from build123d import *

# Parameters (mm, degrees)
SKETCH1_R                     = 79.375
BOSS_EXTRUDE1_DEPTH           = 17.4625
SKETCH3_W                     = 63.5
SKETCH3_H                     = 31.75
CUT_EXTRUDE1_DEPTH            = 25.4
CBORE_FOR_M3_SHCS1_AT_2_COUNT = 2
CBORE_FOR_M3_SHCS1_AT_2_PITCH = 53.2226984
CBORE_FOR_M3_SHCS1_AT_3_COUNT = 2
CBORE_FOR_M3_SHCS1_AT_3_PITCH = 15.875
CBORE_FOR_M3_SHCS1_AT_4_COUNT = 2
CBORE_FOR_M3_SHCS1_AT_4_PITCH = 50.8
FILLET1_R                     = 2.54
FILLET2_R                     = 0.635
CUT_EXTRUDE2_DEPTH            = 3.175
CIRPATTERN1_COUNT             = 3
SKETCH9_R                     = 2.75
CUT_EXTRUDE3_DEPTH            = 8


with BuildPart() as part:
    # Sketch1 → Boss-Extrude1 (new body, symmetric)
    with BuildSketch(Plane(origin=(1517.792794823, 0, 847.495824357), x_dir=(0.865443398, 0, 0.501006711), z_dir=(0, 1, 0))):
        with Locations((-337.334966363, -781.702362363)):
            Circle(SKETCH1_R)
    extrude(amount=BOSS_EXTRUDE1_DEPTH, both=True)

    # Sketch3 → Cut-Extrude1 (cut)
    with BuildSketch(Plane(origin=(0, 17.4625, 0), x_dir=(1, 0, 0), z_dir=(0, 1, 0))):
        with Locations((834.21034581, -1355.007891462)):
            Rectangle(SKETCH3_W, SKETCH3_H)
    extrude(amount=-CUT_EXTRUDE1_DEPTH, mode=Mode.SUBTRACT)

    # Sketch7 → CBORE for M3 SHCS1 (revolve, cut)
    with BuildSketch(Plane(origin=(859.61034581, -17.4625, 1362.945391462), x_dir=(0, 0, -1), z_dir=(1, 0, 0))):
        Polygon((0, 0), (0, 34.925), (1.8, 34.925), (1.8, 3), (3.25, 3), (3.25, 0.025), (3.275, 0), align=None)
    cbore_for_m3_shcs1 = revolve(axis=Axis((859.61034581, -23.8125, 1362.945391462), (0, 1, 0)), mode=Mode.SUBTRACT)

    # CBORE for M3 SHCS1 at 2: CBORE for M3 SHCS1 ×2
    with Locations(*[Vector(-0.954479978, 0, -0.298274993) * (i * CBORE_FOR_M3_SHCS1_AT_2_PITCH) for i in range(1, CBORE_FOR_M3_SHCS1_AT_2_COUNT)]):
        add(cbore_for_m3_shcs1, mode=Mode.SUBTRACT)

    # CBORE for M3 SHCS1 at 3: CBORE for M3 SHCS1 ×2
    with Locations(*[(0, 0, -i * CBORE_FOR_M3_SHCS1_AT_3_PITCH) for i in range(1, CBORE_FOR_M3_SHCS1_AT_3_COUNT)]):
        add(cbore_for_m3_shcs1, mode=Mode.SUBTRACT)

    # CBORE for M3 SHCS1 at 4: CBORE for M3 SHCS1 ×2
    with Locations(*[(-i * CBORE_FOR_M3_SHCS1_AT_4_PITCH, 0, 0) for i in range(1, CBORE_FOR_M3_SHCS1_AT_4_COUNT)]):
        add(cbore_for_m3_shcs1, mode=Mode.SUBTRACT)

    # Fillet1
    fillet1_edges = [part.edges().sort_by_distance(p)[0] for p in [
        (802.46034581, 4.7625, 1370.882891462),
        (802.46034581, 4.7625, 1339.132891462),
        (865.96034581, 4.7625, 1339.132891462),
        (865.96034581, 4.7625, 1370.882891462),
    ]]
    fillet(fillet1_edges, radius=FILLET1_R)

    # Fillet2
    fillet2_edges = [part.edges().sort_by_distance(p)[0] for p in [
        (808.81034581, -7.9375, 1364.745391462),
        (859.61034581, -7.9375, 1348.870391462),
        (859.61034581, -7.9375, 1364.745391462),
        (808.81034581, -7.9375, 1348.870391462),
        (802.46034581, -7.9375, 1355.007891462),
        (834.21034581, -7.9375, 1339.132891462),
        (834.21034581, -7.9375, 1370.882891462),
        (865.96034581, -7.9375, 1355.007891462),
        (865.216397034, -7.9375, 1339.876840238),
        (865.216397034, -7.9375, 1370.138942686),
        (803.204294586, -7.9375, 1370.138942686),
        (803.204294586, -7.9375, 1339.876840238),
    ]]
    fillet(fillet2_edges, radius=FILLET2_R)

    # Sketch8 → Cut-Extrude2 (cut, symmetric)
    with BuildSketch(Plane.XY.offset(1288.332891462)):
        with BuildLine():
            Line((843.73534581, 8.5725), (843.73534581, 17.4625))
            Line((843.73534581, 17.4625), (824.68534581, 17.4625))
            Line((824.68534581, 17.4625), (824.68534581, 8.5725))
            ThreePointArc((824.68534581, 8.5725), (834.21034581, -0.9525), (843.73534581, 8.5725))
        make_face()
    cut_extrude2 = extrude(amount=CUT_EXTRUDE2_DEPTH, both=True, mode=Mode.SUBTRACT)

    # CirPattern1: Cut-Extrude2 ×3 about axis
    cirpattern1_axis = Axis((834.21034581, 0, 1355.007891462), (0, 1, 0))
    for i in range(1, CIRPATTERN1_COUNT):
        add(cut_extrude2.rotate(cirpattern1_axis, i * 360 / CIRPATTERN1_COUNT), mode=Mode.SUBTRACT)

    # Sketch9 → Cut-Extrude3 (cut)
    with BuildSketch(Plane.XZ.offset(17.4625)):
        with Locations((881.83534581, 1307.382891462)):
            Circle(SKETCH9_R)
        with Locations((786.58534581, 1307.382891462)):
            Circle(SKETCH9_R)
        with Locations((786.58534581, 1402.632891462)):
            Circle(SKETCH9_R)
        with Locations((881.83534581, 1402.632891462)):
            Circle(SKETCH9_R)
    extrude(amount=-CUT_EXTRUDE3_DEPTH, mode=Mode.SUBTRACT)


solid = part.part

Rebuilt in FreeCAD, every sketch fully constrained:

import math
import FreeCAD as App
import Part
import Sketcher

V = App.Vector
Q = App.Units.Quantity


def edges_at(feature, points):
    """Names of the edges that pass closest to the given points."""
    edges = feature.Shape.Edges
    near = lambda p: min(range(len(edges)), key=lambda i: edges[i].distToShape(Part.Vertex(*p))[0])
    return sorted({f"Edge{near(p) + 1}" for p in points})

doc = App.newDocument("Part")
body = doc.addObject("PartDesign::Body", "Body")

sketch1 = body.newObject("Sketcher::SketchObject", "Sketch")
sketch1.AttachmentSupport = (doc.getObject("XZ_Plane"), [""])
sketch1.MapMode = "FlatFace"
sketch1.addGeometry(Part.Circle(V(834.210346, 1355.007891, 0), V(0, 0, 1), 79.375), False)
sketch1.addConstraint(Sketcher.Constraint("Diameter", 0, Q("6.25 in")))
sketch1.addConstraint(Sketcher.Constraint("DistanceY", -1, 1, 0, 3, 1355.007891))
sketch1.addConstraint(Sketcher.Constraint("DistanceX", -1, 1, 0, 3, 834.210346))
pad1 = body.newObject("PartDesign::Pad", "Pad")
pad1.Profile = sketch1
pad1.Length = Q("1.375 in")
pad1.Midplane = True

sketch2 = body.newObject("Sketcher::SketchObject", "Sketch001")
sketch2.AttachmentSupport = (doc.getObject("XZ_Plane"), [""])
sketch2.MapMode = "FlatFace"
sketch2.AttachmentOffset = App.Placement(V(0, 0, -0.6875 * 25.4), App.Rotation())
sketch2.addGeometry(Part.LineSegment(V(802.460346, 1339.132891, 0), V(802.460346, 1370.882891, 0)), False)
sketch2.addGeometry(Part.LineSegment(V(802.460346, 1370.882891, 0), V(865.960346, 1370.882891, 0)), False)
sketch2.addGeometry(Part.LineSegment(V(865.960346, 1370.882891, 0), V(865.960346, 1339.132891, 0)), False)
sketch2.addGeometry(Part.LineSegment(V(865.960346, 1339.132891, 0), V(802.460346, 1339.132891, 0)), False)
sketch2.addConstraint(Sketcher.Constraint("Coincident", 0, 2, 1, 1))
sketch2.addConstraint(Sketcher.Constraint("Coincident", 1, 2, 2, 1))
sketch2.addConstraint(Sketcher.Constraint("Coincident", 2, 2, 3, 1))
sketch2.addConstraint(Sketcher.Constraint("Coincident", 3, 2, 0, 1))
sketch2.addConstraint(Sketcher.Constraint("Vertical", 0))
sketch2.addConstraint(Sketcher.Constraint("Horizontal", 1))
sketch2.addConstraint(Sketcher.Constraint("Vertical", 2))
sketch2.addConstraint(Sketcher.Constraint("Horizontal", 3))
sketch2.addConstraint(Sketcher.Constraint("DistanceX", 1, 1, 1, 2, Q("2.5 in")))
sketch2.addConstraint(Sketcher.Constraint("DistanceY", 0, 1, 0, 2, Q("1.25 in")))
sketch2.addConstraint(Sketcher.Constraint("DistanceY", -1, 1, 0, 2, 1370.882891))
sketch2.addConstraint(Sketcher.Constraint("DistanceX", -1, 1, 0, 2, 802.460346))
pocket1 = body.newObject("PartDesign::Pocket", "Pocket")
pocket1.Profile = sketch2
pocket1.Length = Q("1 in")
pocket1.Reversed = True

sketch3 = body.newObject("Sketcher::SketchObject", "Sketch002")
sketch3.AttachmentSupport = (doc.getObject("YZ_Plane"), [""])
sketch3.MapMode = "FlatFace"
sketch3.AttachmentOffset = App.Placement(V(0, 0, 859.610346), App.Rotation())
sketch3.addGeometry(Part.LineSegment(V(17.4625, 1362.945391, 0), V(-17.4625, 1362.945391, 0)), False)
sketch3.addGeometry(Part.LineSegment(V(-17.4625, 1362.945391, 0), V(-17.4625, 1359.670391, 0)), False)
sketch3.addGeometry(Part.LineSegment(V(-17.4625, 1359.670391, 0), V(-17.4375, 1359.695391, 0)), False)
sketch3.addGeometry(Part.LineSegment(V(-17.4375, 1359.695391, 0), V(-14.4625, 1359.695391, 0)), False)
sketch3.addGeometry(Part.LineSegment(V(-14.4625, 1359.695391, 0), V(-14.4625, 1361.145391, 0)), False)
sketch3.addGeometry(Part.LineSegment(V(-14.4625, 1361.145391, 0), V(17.4625, 1361.145391, 0)), False)
sketch3.addGeometry(Part.LineSegment(V(17.4625, 1361.145391, 0), V(17.4625, 1362.945391, 0)), False)
sketch3.addGeometry(Part.LineSegment(V(-17.4625, 1362.945391, 0), V(17.4625, 1362.945391, 0)), True)
sketch3.addConstraint(Sketcher.Constraint("Coincident", 0, 2, 1, 1))
sketch3.addConstraint(Sketcher.Constraint("Coincident", 1, 2, 2, 1))
sketch3.addConstraint(Sketcher.Constraint("Coincident", 2, 2, 3, 1))
sketch3.addConstraint(Sketcher.Constraint("Coincident", 3, 2, 4, 1))
sketch3.addConstraint(Sketcher.Constraint("Coincident", 4, 2, 5, 1))
sketch3.addConstraint(Sketcher.Constraint("Coincident", 5, 2, 6, 1))
sketch3.addConstraint(Sketcher.Constraint("Coincident", 6, 2, 0, 1))
sketch3.addConstraint(Sketcher.Constraint("Horizontal", 0))
sketch3.addConstraint(Sketcher.Constraint("Vertical", 1))
sketch3.addConstraint(Sketcher.Constraint("Horizontal", 3))
sketch3.addConstraint(Sketcher.Constraint("Vertical", 4))
sketch3.addConstraint(Sketcher.Constraint("Horizontal", 5))
sketch3.addConstraint(Sketcher.Constraint("Vertical", 6))
sketch3.addConstraint(Sketcher.Constraint("Horizontal", 7))
sketch3.addConstraint(Sketcher.Constraint("Coincident", 7, 1, 0, 2))
sketch3.addConstraint(Sketcher.Constraint("Vertical", 5, 2, 7, 2))
sketch3.addConstraint(Sketcher.Constraint("Angle", 2, Q("45 deg")))
sketch3.addConstraint(Sketcher.Constraint("DistanceX", 0, 2, 0, 1, Q("1.375 in")))
sketch3.addConstraint(Sketcher.Constraint("DistanceX", 0, 2, -1, 1, Q("0.6875 in")))
sketch3.addConstraint(Sketcher.Constraint("DistanceX", 3, 1, 3, 2, 2.975))
sketch3.addConstraint(Sketcher.Constraint("DistanceX", 5, 1, 5, 2, 31.925))
sketch3.addConstraint(Sketcher.Constraint("DistanceY", 1, 2, 1, 1, 3.275))
sketch3.addConstraint(Sketcher.Constraint("DistanceY", 4, 1, 4, 2, 1.45))
sketch3.addConstraint(Sketcher.Constraint("DistanceY", -1, 1, 0, 2, 1362.945391))
groove = body.newObject("PartDesign::Groove", "Groove")
groove.Profile = sketch3
groove.ReferenceAxis = (sketch3, ["Axis0"])
groove.Angle = 360
doc.recompute()

datumline = body.newObject("PartDesign::Line", "DatumLine")
datumline.Placement = App.Placement(V(0, 0, 0), App.Rotation(V(0, 0, 1), V(-0.954479978, 0, -0.298274993)))
linearpattern = body.newObject("PartDesign::LinearPattern", "LinearPattern")
linearpattern.Originals = [groove]
linearpattern.Direction = (datumline, [""])
linearpattern.Mode = "offset"
linearpattern.Offset = 53.222698
linearpattern.Occurrences = 2
body.Tip = linearpattern
doc.recompute()

linearpattern2 = body.newObject("PartDesign::LinearPattern", "LinearPattern001")
linearpattern2.Originals = [groove]
linearpattern2.Direction = (doc.getObject("Z_Axis"), [""])
linearpattern2.Mode = "offset"
linearpattern2.Offset = Q("0.625 in")
linearpattern2.Occurrences = 2
linearpattern2.Reversed = True
body.Tip = linearpattern2
doc.recompute()

linearpattern3 = body.newObject("PartDesign::LinearPattern", "LinearPattern002")
linearpattern3.Originals = [groove]
linearpattern3.Direction = (doc.getObject("X_Axis"), [""])
linearpattern3.Mode = "offset"
linearpattern3.Offset = Q("2 in")
linearpattern3.Occurrences = 2
linearpattern3.Reversed = True
body.Tip = linearpattern3
doc.recompute()

fillet = body.newObject("PartDesign::Fillet", "Fillet")
fillet.Base = (linearpattern3, edges_at(linearpattern3, [
    (802.46, 4.763, 1370.883),
    (802.46, 4.763, 1339.133),
    (865.96, 4.763, 1339.133),
    (865.96, 4.763, 1370.883),
]))
fillet.Radius = Q("0.1 in")
doc.recompute()

fillet2 = body.newObject("PartDesign::Fillet", "Fillet001")
fillet2.Base = (fillet, edges_at(fillet, [
    (808.81, -7.938, 1364.745),
    (859.61, -7.938, 1348.87),
    (859.61, -7.938, 1364.745),
    (808.81, -7.938, 1348.87),
    (802.46, -7.938, 1355.008),
    (834.21, -7.938, 1339.133),
    (834.21, -7.938, 1370.883),
    (865.96, -7.938, 1355.008),
    (865.216, -7.938, 1339.877),
    (865.216, -7.938, 1370.139),
    (803.204, -7.938, 1370.139),
    (803.204, -7.938, 1339.877),
]))
fillet2.Radius = Q("0.025 in")

sketch4 = body.newObject("Sketcher::SketchObject", "Sketch003")
sketch4.AttachmentSupport = (doc.getObject("XY_Plane"), [""])
sketch4.MapMode = "FlatFace"
sketch4.AttachmentOffset = App.Placement(V(0, 0, 1288.332891), App.Rotation())
sketch4.addGeometry(Part.LineSegment(V(843.735346, 8.5725, 0), V(843.735346, 17.4625, 0)), False)
sketch4.addGeometry(Part.LineSegment(V(843.735346, 17.4625, 0), V(824.685346, 17.4625, 0)), False)
sketch4.addGeometry(Part.LineSegment(V(824.685346, 17.4625, 0), V(824.685346, 8.5725, 0)), False)
sketch4.addGeometry(Part.ArcOfCircle(Part.Circle(V(834.210346, 8.5725, 0), V(0, 0, 1), 9.525), math.radians(180), math.radians(360)), False)
sketch4.addConstraint(Sketcher.Constraint("Coincident", 0, 2, 1, 1))
sketch4.addConstraint(Sketcher.Constraint("Coincident", 1, 2, 2, 1))
sketch4.addConstraint(Sketcher.Constraint("Tangent", 2, 2, 3, 1))
sketch4.addConstraint(Sketcher.Constraint("Tangent", 3, 2, 0, 1))
sketch4.addConstraint(Sketcher.Constraint("Vertical", 0))
sketch4.addConstraint(Sketcher.Constraint("Horizontal", 1))
sketch4.addConstraint(Sketcher.Constraint("Vertical", 2))
sketch4.addConstraint(Sketcher.Constraint("Radius", 3, Q("0.375 in")))
sketch4.addConstraint(Sketcher.Constraint("DistanceY", 0, 1, 0, 2, Q("0.35 in")))
sketch4.addConstraint(Sketcher.Constraint("DistanceY", -1, 1, 0, 2, Q("0.6875 in")))
sketch4.addConstraint(Sketcher.Constraint("DistanceX", -1, 1, 3, 3, 834.210346))
pocket2 = body.newObject("PartDesign::Pocket", "Pocket001")
pocket2.Profile = sketch4
pocket2.Length = Q("0.25 in")
pocket2.Midplane = True
doc.recompute()

datumline2 = body.newObject("PartDesign::Line", "DatumLine001")
datumline2.Placement = App.Placement(V(834.210346, 0, 1355.007891), App.Rotation(V(0, 0, 1), V(0, 1, 0)))
polarpattern = body.newObject("PartDesign::PolarPattern", "PolarPattern")
polarpattern.Originals = [pocket2]
polarpattern.Axis = (datumline2, [""])
polarpattern.Angle = 360
polarpattern.Occurrences = 3
body.Tip = polarpattern

sketch5 = body.newObject("Sketcher::SketchObject", "Sketch004")
sketch5.AttachmentSupport = (doc.getObject("XZ_Plane"), [""])
sketch5.MapMode = "FlatFace"
sketch5.AttachmentOffset = App.Placement(V(0, 0, 0.6875 * 25.4), App.Rotation())
sketch5.addGeometry(Part.Circle(V(881.835346, 1307.382891, 0), V(0, 0, 1), 2.75), False)
sketch5.addGeometry(Part.Circle(V(786.585346, 1307.382891, 0), V(0, 0, 1), 2.75), False)
sketch5.addGeometry(Part.Circle(V(786.585346, 1402.632891, 0), V(0, 0, 1), 2.75), False)
sketch5.addGeometry(Part.Circle(V(881.835346, 1402.632891, 0), V(0, 0, 1), 2.75), False)
sketch5.addConstraint(Sketcher.Constraint("Equal", 0, 1))
sketch5.addConstraint(Sketcher.Constraint("Equal", 1, 2))
sketch5.addConstraint(Sketcher.Constraint("Equal", 2, 3))
sketch5.addConstraint(Sketcher.Constraint("Horizontal", 0, 3, 1, 3))
sketch5.addConstraint(Sketcher.Constraint("Horizontal", 2, 3, 3, 3))
sketch5.addConstraint(Sketcher.Constraint("Vertical", 1, 3, 2, 3))
sketch5.addConstraint(Sketcher.Constraint("Vertical", 0, 3, 3, 3))
sketch5.addConstraint(Sketcher.Constraint("Diameter", 0, 5.5))
sketch5.addConstraint(Sketcher.Constraint("DistanceX", 1, 3, 0, 3, Q("3.75 in")))
sketch5.addConstraint(Sketcher.Constraint("DistanceY", 1, 3, 2, 3, Q("3.75 in")))
sketch5.addConstraint(Sketcher.Constraint("DistanceY", -1, 1, 0, 3, 1307.382891))
sketch5.addConstraint(Sketcher.Constraint("DistanceX", -1, 1, 0, 3, 881.835346))
pocket3 = body.newObject("PartDesign::Pocket", "Pocket002")
pocket3.Profile = sketch5
pocket3.Length = 8

doc.recompute()
